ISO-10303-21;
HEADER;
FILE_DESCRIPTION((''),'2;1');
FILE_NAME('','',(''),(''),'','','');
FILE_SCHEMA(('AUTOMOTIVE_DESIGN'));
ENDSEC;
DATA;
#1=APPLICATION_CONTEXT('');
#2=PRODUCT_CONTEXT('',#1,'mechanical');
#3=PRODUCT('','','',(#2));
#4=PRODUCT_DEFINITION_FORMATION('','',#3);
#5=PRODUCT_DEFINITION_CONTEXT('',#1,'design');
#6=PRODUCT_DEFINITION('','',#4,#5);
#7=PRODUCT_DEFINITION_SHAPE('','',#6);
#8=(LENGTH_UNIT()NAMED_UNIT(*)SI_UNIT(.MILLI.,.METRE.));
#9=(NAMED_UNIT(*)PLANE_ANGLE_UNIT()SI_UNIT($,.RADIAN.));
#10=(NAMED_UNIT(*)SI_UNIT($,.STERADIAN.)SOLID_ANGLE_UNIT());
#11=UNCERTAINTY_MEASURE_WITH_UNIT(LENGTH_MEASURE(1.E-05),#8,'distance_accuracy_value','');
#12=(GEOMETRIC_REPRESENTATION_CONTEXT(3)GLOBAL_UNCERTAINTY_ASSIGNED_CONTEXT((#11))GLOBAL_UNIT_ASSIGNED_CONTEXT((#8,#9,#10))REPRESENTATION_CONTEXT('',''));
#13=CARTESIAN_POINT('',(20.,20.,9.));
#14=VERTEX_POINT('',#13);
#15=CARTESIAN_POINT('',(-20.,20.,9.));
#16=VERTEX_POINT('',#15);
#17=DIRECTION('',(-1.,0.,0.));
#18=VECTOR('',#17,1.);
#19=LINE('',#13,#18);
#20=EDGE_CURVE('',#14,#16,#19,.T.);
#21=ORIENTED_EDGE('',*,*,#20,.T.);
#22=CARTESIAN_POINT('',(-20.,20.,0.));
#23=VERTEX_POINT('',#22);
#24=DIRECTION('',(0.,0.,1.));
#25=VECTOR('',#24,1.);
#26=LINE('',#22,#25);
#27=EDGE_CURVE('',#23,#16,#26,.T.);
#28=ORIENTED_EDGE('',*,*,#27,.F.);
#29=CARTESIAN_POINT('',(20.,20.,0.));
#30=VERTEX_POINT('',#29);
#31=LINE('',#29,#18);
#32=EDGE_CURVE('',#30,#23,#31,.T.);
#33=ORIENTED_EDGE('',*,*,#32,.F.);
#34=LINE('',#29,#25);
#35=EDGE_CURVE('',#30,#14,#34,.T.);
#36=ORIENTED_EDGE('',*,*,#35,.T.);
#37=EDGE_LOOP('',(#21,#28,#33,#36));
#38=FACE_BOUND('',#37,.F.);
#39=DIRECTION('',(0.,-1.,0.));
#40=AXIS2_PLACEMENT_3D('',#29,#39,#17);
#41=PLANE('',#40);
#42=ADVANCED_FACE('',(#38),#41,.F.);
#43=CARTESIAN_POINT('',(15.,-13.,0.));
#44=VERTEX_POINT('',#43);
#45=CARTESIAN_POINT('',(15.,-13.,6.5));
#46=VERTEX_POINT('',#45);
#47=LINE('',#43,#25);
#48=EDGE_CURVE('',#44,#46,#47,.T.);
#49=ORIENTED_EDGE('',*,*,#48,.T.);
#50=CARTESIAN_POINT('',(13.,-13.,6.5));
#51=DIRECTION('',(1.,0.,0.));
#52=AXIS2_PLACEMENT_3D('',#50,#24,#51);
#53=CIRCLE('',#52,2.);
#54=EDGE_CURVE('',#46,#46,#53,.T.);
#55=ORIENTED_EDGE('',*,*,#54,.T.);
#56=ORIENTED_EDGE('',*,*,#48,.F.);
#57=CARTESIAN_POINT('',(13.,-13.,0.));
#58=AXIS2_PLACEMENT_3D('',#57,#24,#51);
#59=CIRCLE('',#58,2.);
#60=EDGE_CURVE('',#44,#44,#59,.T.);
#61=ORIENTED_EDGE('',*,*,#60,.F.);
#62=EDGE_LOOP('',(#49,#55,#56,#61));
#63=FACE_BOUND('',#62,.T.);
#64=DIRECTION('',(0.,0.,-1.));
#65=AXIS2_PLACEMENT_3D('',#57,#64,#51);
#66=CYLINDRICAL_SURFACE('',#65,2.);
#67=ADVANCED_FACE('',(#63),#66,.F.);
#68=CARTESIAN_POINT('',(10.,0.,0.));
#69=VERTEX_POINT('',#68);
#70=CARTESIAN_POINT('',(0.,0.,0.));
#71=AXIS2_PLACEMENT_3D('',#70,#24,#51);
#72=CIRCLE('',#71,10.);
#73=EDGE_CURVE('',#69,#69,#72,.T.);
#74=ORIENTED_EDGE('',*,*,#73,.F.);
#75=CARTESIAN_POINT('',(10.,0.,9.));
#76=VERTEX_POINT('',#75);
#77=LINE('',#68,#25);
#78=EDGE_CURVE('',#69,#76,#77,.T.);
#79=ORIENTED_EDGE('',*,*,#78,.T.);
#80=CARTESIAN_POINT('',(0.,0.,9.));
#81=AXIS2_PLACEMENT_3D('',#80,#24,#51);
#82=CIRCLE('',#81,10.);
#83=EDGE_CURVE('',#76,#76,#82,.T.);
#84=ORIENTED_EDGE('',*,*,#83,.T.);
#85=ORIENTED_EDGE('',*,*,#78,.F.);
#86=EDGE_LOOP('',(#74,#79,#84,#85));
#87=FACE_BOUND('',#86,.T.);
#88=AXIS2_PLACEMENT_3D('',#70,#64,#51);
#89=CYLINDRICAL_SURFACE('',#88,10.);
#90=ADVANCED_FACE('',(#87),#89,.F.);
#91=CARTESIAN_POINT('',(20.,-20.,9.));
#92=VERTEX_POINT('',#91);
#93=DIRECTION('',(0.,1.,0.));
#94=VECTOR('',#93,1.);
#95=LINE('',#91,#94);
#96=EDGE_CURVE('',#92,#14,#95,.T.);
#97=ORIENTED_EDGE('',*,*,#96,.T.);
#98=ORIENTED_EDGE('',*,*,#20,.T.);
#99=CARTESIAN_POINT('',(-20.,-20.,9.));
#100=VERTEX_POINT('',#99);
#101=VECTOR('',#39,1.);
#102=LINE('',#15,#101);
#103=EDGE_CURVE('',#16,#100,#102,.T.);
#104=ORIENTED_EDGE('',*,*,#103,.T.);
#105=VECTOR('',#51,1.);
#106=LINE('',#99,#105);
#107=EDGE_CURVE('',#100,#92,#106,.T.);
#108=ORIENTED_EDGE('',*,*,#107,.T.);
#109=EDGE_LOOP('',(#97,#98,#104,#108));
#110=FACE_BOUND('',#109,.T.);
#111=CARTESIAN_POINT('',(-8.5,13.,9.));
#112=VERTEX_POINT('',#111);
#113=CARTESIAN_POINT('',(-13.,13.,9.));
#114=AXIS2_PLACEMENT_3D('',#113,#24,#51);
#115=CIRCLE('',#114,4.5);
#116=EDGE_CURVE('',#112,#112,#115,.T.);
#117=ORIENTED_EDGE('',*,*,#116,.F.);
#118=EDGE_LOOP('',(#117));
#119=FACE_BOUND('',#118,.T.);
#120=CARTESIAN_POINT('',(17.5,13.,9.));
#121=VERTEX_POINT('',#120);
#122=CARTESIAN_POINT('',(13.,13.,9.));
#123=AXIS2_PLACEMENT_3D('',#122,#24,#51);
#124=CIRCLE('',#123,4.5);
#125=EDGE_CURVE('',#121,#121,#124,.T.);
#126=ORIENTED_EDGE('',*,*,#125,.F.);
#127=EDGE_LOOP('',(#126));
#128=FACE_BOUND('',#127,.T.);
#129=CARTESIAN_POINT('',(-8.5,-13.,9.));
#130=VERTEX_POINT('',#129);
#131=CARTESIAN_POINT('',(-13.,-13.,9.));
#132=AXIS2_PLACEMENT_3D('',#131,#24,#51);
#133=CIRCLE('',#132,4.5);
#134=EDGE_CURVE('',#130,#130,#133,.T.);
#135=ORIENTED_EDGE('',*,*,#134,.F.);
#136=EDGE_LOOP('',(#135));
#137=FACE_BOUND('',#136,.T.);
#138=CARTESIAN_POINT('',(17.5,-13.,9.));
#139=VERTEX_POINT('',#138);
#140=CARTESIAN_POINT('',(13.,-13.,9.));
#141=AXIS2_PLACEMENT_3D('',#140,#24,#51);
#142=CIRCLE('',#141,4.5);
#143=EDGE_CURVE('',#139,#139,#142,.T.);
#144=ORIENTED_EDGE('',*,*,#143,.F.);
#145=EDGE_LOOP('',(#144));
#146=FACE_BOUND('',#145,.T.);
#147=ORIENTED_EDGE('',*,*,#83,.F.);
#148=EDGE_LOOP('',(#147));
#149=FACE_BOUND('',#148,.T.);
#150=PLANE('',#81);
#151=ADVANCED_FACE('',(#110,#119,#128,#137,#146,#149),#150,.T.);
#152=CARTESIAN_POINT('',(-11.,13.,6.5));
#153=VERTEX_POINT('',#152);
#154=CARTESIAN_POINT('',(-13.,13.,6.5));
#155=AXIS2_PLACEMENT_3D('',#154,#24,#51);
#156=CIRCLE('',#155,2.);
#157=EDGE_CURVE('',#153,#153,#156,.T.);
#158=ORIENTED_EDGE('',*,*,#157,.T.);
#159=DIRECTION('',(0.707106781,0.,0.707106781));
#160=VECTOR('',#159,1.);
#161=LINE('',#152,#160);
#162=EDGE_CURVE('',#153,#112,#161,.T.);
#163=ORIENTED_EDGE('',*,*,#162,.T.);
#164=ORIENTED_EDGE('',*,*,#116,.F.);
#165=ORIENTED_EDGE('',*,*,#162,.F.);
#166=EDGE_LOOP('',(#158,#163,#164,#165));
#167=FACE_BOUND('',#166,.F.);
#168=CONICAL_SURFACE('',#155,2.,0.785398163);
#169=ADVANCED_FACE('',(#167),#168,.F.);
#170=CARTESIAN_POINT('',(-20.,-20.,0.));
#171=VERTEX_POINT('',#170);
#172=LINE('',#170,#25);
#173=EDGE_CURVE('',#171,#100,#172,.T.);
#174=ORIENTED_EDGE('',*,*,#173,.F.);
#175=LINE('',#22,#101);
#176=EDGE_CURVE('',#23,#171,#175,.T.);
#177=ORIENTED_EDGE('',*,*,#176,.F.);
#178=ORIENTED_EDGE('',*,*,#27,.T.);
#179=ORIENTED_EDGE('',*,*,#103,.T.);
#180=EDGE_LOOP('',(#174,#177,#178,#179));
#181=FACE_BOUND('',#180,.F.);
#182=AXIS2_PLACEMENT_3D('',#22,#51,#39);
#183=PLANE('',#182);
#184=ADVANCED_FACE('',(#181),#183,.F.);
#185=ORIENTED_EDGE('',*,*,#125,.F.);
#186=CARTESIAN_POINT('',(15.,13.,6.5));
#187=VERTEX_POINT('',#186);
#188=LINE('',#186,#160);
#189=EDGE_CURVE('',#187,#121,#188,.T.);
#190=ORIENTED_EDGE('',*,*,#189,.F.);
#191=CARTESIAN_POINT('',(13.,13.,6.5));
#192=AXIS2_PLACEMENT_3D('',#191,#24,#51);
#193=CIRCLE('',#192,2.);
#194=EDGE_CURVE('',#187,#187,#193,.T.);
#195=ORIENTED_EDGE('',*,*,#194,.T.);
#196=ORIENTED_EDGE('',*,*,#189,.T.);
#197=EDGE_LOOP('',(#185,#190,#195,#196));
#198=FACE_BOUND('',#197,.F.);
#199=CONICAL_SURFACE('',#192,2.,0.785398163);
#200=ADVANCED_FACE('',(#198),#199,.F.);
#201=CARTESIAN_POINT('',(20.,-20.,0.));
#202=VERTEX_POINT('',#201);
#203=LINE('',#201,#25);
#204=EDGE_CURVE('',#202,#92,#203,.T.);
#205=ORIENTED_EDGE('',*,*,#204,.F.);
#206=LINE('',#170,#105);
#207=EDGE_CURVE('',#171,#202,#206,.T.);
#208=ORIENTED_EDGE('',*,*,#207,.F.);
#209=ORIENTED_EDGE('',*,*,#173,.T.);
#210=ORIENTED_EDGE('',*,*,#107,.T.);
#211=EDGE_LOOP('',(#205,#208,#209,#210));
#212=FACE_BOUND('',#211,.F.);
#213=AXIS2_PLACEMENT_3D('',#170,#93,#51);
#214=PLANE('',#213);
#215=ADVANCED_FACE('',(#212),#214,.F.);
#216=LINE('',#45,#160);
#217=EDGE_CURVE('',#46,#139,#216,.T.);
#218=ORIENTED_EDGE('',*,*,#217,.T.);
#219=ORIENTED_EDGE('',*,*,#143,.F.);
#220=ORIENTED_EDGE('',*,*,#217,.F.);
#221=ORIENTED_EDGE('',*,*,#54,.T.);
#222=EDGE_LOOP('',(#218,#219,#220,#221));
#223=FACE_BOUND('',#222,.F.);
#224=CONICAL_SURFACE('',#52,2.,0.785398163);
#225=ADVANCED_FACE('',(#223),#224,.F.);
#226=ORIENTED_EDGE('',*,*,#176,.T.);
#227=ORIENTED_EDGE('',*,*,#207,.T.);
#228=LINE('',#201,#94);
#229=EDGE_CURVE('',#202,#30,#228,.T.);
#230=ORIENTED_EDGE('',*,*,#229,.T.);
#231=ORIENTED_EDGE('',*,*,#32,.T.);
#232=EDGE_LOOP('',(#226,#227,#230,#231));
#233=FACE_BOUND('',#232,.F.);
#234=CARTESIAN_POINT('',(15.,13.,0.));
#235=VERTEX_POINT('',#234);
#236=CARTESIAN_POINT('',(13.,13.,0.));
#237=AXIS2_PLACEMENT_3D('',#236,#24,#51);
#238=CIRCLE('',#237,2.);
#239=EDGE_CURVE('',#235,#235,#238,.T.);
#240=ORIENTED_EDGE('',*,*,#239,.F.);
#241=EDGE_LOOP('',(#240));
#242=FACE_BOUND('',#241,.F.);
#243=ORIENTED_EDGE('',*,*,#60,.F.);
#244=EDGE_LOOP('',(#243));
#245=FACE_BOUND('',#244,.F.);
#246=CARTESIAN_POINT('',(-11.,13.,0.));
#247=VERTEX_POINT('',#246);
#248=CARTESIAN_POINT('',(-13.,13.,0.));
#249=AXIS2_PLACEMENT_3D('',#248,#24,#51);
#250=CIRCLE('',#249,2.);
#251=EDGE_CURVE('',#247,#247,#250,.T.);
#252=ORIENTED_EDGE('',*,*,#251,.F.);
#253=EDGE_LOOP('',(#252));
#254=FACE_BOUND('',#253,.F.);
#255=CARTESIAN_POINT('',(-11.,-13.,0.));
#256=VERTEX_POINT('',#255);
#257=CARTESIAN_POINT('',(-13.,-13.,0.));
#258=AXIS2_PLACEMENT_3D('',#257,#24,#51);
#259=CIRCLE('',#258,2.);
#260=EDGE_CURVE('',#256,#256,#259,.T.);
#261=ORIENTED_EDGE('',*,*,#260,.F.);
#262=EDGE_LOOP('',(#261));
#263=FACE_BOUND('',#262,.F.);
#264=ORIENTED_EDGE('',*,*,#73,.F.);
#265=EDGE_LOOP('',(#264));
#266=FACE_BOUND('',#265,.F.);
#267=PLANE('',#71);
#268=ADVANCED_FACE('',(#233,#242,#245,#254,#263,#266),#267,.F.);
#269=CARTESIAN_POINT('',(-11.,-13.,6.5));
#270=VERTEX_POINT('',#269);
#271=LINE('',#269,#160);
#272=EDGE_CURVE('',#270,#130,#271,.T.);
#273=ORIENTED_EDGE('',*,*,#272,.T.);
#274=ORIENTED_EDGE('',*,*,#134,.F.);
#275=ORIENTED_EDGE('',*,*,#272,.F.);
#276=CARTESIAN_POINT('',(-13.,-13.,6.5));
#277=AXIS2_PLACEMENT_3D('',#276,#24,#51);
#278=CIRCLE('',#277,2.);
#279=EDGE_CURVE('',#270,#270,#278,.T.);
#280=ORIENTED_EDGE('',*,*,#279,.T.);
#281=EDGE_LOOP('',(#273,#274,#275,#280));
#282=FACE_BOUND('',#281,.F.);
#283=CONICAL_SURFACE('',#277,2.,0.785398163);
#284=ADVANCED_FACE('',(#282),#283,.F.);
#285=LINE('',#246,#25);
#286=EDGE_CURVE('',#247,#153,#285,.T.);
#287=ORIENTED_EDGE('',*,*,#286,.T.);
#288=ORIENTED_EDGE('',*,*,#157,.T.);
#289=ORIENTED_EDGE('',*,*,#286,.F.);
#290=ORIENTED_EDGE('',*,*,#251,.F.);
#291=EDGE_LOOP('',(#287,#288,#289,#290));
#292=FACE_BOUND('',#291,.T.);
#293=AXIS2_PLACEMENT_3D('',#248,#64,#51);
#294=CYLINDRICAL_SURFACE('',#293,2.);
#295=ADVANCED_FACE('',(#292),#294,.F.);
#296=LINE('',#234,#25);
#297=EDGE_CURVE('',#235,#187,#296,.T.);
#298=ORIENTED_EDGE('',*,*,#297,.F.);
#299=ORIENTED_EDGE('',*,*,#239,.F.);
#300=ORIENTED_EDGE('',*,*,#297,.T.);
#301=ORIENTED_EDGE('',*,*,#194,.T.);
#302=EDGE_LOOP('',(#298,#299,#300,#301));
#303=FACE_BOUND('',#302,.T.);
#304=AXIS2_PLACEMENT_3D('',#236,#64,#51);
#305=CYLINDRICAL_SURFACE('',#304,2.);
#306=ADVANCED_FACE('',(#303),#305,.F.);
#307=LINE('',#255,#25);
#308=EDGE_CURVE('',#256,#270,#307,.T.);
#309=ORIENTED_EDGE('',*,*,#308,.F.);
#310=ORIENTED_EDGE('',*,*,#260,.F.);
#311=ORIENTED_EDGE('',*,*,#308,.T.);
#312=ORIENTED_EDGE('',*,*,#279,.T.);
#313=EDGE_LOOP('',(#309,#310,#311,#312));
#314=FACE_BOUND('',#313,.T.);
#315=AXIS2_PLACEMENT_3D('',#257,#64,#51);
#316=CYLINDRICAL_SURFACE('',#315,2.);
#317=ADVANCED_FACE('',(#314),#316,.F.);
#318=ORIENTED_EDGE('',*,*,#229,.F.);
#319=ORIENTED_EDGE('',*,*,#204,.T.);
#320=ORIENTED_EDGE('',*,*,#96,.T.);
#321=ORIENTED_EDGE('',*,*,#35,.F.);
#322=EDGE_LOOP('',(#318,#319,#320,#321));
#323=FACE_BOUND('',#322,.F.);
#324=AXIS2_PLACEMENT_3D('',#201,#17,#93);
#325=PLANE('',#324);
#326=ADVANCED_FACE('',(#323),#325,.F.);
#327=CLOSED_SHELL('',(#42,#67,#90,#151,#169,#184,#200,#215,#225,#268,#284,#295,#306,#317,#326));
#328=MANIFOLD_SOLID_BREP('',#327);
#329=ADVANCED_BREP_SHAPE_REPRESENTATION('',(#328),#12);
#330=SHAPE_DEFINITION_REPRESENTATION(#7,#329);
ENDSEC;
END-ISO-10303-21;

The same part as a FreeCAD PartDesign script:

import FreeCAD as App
import Part
import Sketcher

V = App.Vector
Q = App.Units.Quantity


def edges_at(feature, points):
    """Names of the edges that pass closest to the given points."""
    edges = feature.Shape.Edges
    near = lambda p: min(range(len(edges)), key=lambda i: edges[i].distToShape(Part.Vertex(*p))[0])
    return sorted({f"Edge{near(p) + 1}" for p in points})


def add_polygon(sketch, points):
    """Adds a closed chain of lines whose ends are joined by coincident constraints."""
    first, n = sketch.GeometryCount, len(points)
    for a, b in zip(points, points[1:] + points[:1]):
        sketch.addGeometry(Part.LineSegment(App.Vector(*a, 0), App.Vector(*b, 0)), False)
    for i in range(n):
        sketch.addConstraint(Sketcher.Constraint("Coincident", first + i, 2, first + (i + 1) % n, 1))

doc = App.newDocument("Part")
body = doc.addObject("PartDesign::Body", "Body")

sketch1 = body.newObject("Sketcher::SketchObject", "Sketch")
sketch1.AttachmentSupport = (doc.getObject("XY_Plane"), [""])
sketch1.MapMode = "FlatFace"
add_polygon(sketch1, [(20, -20), (20, 20), (-20, 20), (-20, -20)])
sketch1.addGeometry(Part.Circle(V(-13, -13, 0), V(0, 0, 1), 2), False)
sketch1.addGeometry(Part.Circle(V(13, -13, 0), V(0, 0, 1), 2), False)
sketch1.addGeometry(Part.Circle(V(-13, 13, 0), V(0, 0, 1), 2), False)
sketch1.addGeometry(Part.Circle(V(0, 0, 0), V(0, 0, 1), 10), False)
sketch1.addGeometry(Part.Circle(V(13, 13, 0), V(0, 0, 1), 2), False)
sketch1.addConstraint([
    Sketcher.Constraint("Vertical", 0),
    Sketcher.Constraint("Horizontal", 1),
    Sketcher.Constraint("Vertical", 2),
    Sketcher.Constraint("Horizontal", 3),
    Sketcher.Constraint("Coincident", 7, 3, -1, 1),
    Sketcher.Constraint("Equal", 4, 5),
    Sketcher.Constraint("Equal", 5, 6),
    Sketcher.Constraint("Equal", 6, 8),
    Sketcher.Constraint("Symmetric", 5, 3, 6, 3, -1, 1),
    Sketcher.Constraint("Symmetric", 4, 3, 8, 3, -1, 1),
    Sketcher.Constraint("Symmetric", 0, 2, 2, 2, -1, 1),
    Sketcher.Constraint("Symmetric", 4, 3, 5, 3, -2),
    Sketcher.Constraint("Equal", 3, 0),
    Sketcher.Constraint("Diameter", 4, Q("4 mm")),
    Sketcher.Constraint("Diameter", 7, Q("20 mm")),
    Sketcher.Constraint("DistanceX", 1, 2, 1, 1, Q("40 mm")),
    Sketcher.Constraint("DistanceX", 4, 3, 5, 3, Q("26 mm")),
    Sketcher.Constraint("DistanceY", 4, 3, 6, 3, Q("26 mm")),
])
pad1 = body.newObject("PartDesign::Pad", "Pad")
pad1.Profile = sketch1
pad1.Length = 9
doc.recompute()

chamfer = body.newObject("PartDesign::Chamfer", "Chamfer")
chamfer.Base = (pad1, edges_at(pad1, [
    (-14.865, 13.723, 9),
    (-14.865, -12.277, 9),
    (11.135, -12.277, 9),
    (11.135, 13.723, 9),
]))
chamfer.Size = 2.5

doc.recompute()
